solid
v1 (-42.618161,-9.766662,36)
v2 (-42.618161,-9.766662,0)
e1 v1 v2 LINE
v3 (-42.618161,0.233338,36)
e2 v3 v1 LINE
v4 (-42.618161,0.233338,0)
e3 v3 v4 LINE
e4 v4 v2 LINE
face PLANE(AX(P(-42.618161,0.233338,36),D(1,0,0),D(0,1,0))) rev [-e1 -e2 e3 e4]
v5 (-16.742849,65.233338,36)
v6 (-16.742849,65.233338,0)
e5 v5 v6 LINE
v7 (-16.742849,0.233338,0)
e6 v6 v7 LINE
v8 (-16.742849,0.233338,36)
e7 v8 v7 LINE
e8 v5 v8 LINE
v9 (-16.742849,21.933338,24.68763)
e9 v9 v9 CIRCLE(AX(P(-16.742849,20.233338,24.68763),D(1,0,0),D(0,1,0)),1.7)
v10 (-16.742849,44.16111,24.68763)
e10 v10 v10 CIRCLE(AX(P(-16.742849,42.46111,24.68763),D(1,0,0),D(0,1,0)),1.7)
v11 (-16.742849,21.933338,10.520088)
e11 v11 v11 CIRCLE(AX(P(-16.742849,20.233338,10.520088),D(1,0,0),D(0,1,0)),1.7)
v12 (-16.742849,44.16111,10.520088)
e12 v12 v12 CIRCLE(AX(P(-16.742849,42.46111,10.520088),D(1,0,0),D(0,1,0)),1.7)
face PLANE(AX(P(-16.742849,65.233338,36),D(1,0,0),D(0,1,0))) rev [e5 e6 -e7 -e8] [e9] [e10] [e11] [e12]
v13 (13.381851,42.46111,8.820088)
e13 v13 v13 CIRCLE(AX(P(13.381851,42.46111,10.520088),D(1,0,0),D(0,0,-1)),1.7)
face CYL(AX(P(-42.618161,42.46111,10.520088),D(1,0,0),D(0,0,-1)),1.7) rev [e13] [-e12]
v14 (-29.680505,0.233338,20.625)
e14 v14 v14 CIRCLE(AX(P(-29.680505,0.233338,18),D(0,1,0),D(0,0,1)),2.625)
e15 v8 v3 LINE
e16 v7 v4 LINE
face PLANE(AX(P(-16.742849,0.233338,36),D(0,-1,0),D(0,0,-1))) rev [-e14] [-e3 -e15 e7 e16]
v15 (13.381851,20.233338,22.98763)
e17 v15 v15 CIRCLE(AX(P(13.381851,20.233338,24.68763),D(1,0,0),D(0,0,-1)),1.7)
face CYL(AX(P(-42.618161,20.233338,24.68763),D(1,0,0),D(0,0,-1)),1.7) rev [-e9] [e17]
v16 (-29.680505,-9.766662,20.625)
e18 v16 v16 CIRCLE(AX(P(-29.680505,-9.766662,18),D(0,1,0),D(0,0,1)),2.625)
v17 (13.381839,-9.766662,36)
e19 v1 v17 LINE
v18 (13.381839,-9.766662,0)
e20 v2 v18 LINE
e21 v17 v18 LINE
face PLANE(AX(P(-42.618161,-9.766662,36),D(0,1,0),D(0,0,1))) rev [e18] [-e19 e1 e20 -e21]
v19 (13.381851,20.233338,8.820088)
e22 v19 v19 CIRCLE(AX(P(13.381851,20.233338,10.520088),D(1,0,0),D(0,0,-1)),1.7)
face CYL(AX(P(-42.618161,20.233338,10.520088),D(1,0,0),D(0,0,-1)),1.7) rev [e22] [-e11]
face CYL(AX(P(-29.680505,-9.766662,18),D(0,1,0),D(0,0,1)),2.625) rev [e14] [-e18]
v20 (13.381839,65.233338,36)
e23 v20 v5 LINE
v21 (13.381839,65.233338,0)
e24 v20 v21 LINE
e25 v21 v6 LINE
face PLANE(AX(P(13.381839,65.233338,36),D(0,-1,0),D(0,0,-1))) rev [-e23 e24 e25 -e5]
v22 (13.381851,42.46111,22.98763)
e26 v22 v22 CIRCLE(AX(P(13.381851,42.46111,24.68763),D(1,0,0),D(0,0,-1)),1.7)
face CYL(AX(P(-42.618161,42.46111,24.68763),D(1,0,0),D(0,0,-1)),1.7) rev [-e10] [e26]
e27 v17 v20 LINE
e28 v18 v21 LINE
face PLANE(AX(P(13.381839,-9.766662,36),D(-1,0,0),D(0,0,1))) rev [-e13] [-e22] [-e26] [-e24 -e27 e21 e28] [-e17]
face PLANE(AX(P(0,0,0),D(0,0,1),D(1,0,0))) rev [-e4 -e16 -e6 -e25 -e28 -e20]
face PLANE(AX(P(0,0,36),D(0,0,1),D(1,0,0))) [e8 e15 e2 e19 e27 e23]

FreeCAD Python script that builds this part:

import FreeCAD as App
import Part
import Sketcher
from FreeCAD import Vector
Q = App.Units.Quantity


def add_polygon(sketch, points):
    """Adds a closed chain of lines whose ends are joined by coincident constraints."""
    first, n = sketch.GeometryCount, len(points)
    for a, b in zip(points, points[1:] + points[:1]):
        sketch.addGeometry(Part.LineSegment(App.Vector(*a, 0), App.Vector(*b, 0)), False)
    for i in range(n):
        sketch.addConstraint(Sketcher.Constraint("Coincident", first + i, 2, first + (i + 1) % n, 1))

doc = App.newDocument("Part")
params = doc.addObject("Spreadsheet::Sheet", "Params")
for row, (alias, value) in enumerate([
    ("sketch1_width", "56 mm"),
    ("sketch1_height", "10 mm"),
    ("sketch1_height2", "75 mm"),
    ("pad1_length", "36 mm"),
    ("sketch2_diameter", "5.25 mm"),
    ("sketch3_diameter", "3.4 mm"),
], start=1):
    params.set(f"A{row}", alias)
    params.set(f"B{row}", "=" + value)
    params.setAlias(f"B{row}", alias)

body = doc.addObject("PartDesign::Body", "Body")

sketch1 = body.newObject("Sketcher::SketchObject", "Sketch")
sketch1.AttachmentSupport = (doc.getObject("XY_Plane"), [""])
sketch1.MapMode = "FlatFace"
add_polygon(sketch1, [(-43, 0), (-43, -10), (13, -10), (13, 65), (-17, 65), (-17, 0)])
sketch1.addConstraint([
    Sketcher.Constraint("Vertical", 0),
    Sketcher.Constraint("Horizontal", 1),
    Sketcher.Constraint("Vertical", 2),
    Sketcher.Constraint("Horizontal", 3),
    Sketcher.Constraint("Vertical", 4),
    Sketcher.Constraint("Horizontal", 5),
    Sketcher.Constraint("DistanceX", 1, 1, 1, 2, Q("56 mm")),
    Sketcher.Constraint("DistanceY", 0, 2, 0, 1, Q("10 mm")),
    Sketcher.Constraint("DistanceY", 2, 1, 2, 2, Q("75 mm")),
    Sketcher.Constraint("DistanceX", 3, 2, 3, 1, Q("30.124688 mm")),
    Sketcher.Constraint("DistanceX", 0, 2, -1, 1, Q("42.618161 mm")),
    Sketcher.Constraint("DistanceY", 0, 2, -1, 1, Q("9.766662 mm")),
])
sketch1.setExpression("Constraints[12]", "Params.sketch1_width")
sketch1.setExpression("Constraints[13]", "Params.sketch1_height")
sketch1.setExpression("Constraints[14]", "Params.sketch1_height2")
pad1 = body.newObject("PartDesign::Pad", "Pad")
pad1.Profile = sketch1
pad1.setExpression("Length", "Params.pad1_length")

sketch2 = body.newObject("Sketcher::SketchObject", "Sketch001")
sketch2.AttachmentSupport = (doc.getObject("XZ_Plane"), [""])
sketch2.MapMode = "FlatFace"
sketch2.AttachmentOffset = App.Placement(Vector(0, 0, -0.233338), App.Rotation())
sketch2.addGeometry(Part.Circle(Vector(-29.7, 18, 0), Vector(0, 0, 1), 2.6), False)
sketch2.addConstraint([
    Sketcher.Constraint("Diameter", 0, Q("5.25 mm")),
    Sketcher.Constraint("DistanceY", -1, 1, 0, 3, Q("18 mm")),
    Sketcher.Constraint("DistanceX", 0, 3, -1, 1, Q("29.680505 mm")),
])
sketch2.setExpression("Constraints[0]", "Params.sketch2_diameter")
pocket1 = body.newObject("PartDesign::Pocket", "Pocket")
pocket1.Profile = sketch2
pocket1.Type = "ThroughAll"
pocket1.Reversed = True

sketch3 = body.newObject("Sketcher::SketchObject", "Sketch002")
sketch3.AttachmentSupport = (doc.getObject("YZ_Plane"), [""])
sketch3.MapMode = "FlatFace"
sketch3.AttachmentOffset = App.Placement(Vector(0, 0, 13.381839), App.Rotation())
sketch3.addGeometry([
    Part.Circle(Vector(20.2, 24.7, 0), Vector(0, 0, 1), 1.7),
    Part.Circle(Vector(20.2, 10.5, 0), Vector(0, 0, 1), 1.7),
    Part.Circle(Vector(42.5, 24.7, 0), Vector(0, 0, 1), 1.7),
    Part.Circle(Vector(42.5, 10.5, 0), Vector(0, 0, 1), 1.7),
], False)
sketch3.addConstraint([
    Sketcher.Constraint("Equal", 0, 1),
    Sketcher.Constraint("Equal", 1, 2),
    Sketcher.Constraint("Equal", 2, 3),
    Sketcher.Constraint("Horizontal", 0, 3, 2, 3),
    Sketcher.Constraint("Horizontal", 1, 3, 3, 3),
    Sketcher.Constraint("Vertical", 0, 3, 1, 3),
    Sketcher.Constraint("Vertical", 2, 3, 3, 3),
    Sketcher.Constraint("Diameter", 0, Q("3.4 mm")),
    Sketcher.Constraint("DistanceX", -1, 1, 0, 3, Q("20.233338 mm")),
    Sketcher.Constraint("DistanceY", -1, 1, 0, 3, Q("24.68763 mm")),
    Sketcher.Constraint("DistanceY", -1, 1, 1, 3, Q("10.520088 mm")),
    Sketcher.Constraint("DistanceX", -1, 1, 2, 3, Q("42.46111 mm")),
])
sketch3.setExpression("Constraints[7]", "Params.sketch3_diameter")
pocket2 = body.newObject("PartDesign::Pocket", "Pocket001")
pocket2.Profile = sketch3
pocket2.Type = "ThroughAll"
pocket2.Midplane = True

doc.recompute()
